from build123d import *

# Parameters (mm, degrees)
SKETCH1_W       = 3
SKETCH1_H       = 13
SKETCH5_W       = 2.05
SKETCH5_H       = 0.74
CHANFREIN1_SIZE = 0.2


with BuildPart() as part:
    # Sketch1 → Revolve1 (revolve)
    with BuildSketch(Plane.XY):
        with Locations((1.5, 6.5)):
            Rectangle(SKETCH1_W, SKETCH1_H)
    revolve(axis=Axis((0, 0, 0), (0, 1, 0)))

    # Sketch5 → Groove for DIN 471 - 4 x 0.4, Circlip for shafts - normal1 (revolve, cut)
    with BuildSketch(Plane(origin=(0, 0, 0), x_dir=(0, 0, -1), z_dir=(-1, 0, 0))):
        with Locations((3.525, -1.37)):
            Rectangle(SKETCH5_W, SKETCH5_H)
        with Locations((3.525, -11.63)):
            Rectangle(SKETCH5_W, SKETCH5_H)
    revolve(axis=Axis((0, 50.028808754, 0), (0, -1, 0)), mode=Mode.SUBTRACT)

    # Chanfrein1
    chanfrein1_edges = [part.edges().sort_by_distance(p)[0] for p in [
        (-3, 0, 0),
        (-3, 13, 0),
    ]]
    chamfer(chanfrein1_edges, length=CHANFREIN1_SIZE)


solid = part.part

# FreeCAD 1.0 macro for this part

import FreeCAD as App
import Part
import Sketcher

V = App.Vector
Q = App.Units.Quantity


def edges_at(feature, points):
    """Names of the edges that pass closest to the given points."""
    edges = feature.Shape.Edges
    near = lambda p: min(range(len(edges)), key=lambda i: edges[i].distToShape(Part.Vertex(*p))[0])
    return sorted({f"Edge{near(p) + 1}" for p in points})


def add_polygon(sketch, points):
    """Adds a closed chain of lines whose ends are joined by coincident constraints."""
    first, n = sketch.GeometryCount, len(points)
    for a, b in zip(points, points[1:] + points[:1]):
        sketch.addGeometry(Part.LineSegment(App.Vector(*a, 0), App.Vector(*b, 0)), False)
    for i in range(n):
        sketch.addConstraint(Sketcher.Constraint("Coincident", first + i, 2, first + (i + 1) % n, 1))

doc = App.newDocument("Part")
body = doc.addObject("PartDesign::Body", "Body")

# Sketch on XY plane
sketch1 = body.newObject("Sketcher::SketchObject", "Sketch")
sketch1.AttachmentSupport = (doc.getObject("XY_Plane"), [""])
sketch1.MapMode = "FlatFace"
add_polygon(sketch1, [(0, 13), (0, 0), (3, 0), (3, 13)])  # lines 0-3
sketch1.addConstraint(Sketcher.Constraint("Vertical", 0))
sketch1.addConstraint(Sketcher.Constraint("Horizontal", 1))
sketch1.addConstraint(Sketcher.Constraint("Vertical", 2))
sketch1.addConstraint(Sketcher.Constraint("Horizontal", 3))
sketch1.addConstraint(Sketcher.Constraint("Coincident", 0, 2, -1, 1))
sketch1.addConstraint(Sketcher.Constraint("DistanceX", 1, 1, 1, 2, Q("3 mm")))
sketch1.addConstraint(Sketcher.Constraint("DistanceY", 0, 2, 0, 1, Q("13 mm")))
revolution = body.newObject("PartDesign::Revolution", "Revolution")
revolution.Profile = sketch1
revolution.ReferenceAxis = (sketch1, ["V_Axis"])
revolution.Angle = 360

# Sketch on YZ plane
sketch2 = body.newObject("Sketcher::SketchObject", "Sketch001")
sketch2.AttachmentSupport = (doc.getObject("YZ_Plane"), [""])
sketch2.MapMode = "FlatFace"
add_polygon(sketch2, [(1, -2.5), (1.74, -2.5), (1.74, -4.55), (1, -4.55)])  # lines 0-3
add_polygon(sketch2, [(11.26, -2.5), (12, -2.5), (12, -4.55), (11.26, -4.55)])  # lines 4-7
sketch2.addConstraint(Sketcher.Constraint("Horizontal", 0))
sketch2.addConstraint(Sketcher.Constraint("Vertical", 1))
sketch2.addConstraint(Sketcher.Constraint("Horizontal", 2))
sketch2.addConstraint(Sketcher.Constraint("Vertical", 3))
sketch2.addConstraint(Sketcher.Constraint("Horizontal", 4))
sketch2.addConstraint(Sketcher.Constraint("Vertical", 5))
sketch2.addConstraint(Sketcher.Constraint("Horizontal", 6))
sketch2.addConstraint(Sketcher.Constraint("Vertical", 7))
sketch2.addConstraint(Sketcher.Constraint("Horizontal", 3, 2, 4, 2))
sketch2.addConstraint(Sketcher.Constraint("Horizontal", 2, 2, 5, 2))
sketch2.addConstraint(Sketcher.Constraint("Equal", 2, 4))
sketch2.addConstraint(Sketcher.Constraint("DistanceX", -1, 1, 2, 2, Q("1 mm")))
sketch2.addConstraint(Sketcher.Constraint("DistanceX", -1, 1, 4, 2, Q("12 mm")))
sketch2.addConstraint(Sketcher.Constraint("DistanceX", 0, 1, 0, 2, Q("0.74 mm")))
sketch2.addConstraint(Sketcher.Constraint("DistanceY", 1, 2, 1, 1, Q("2.05 mm")))
sketch2.addConstraint(Sketcher.Constraint("DistanceY", 0, 2, -1, 1, Q("2.5 mm")))
groove = body.newObject("PartDesign::Groove", "Groove")
groove.Profile = sketch2
groove.ReferenceAxis = (sketch2, ["H_Axis"])
groove.Angle = 360
doc.recompute()

chamfer = body.newObject("PartDesign::Chamfer", "Chamfer")
chamfer.Base = (groove, edges_at(groove, [(-3, 0, 0), (-3, 13, 0)]))
chamfer.Size = 0.2

doc.recompute()
